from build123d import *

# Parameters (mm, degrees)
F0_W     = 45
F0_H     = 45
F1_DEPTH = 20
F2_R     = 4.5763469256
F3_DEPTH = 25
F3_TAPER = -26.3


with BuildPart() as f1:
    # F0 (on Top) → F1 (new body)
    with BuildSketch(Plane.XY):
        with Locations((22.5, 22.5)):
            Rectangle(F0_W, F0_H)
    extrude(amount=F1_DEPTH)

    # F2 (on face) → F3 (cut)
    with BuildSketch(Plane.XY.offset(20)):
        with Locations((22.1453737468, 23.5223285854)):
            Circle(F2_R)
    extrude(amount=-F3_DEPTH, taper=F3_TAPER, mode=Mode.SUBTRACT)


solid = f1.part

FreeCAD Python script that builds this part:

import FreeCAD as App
import Part
import Sketcher
Q = App.Units.Quantity

doc = App.newDocument("Part")
body = doc.addObject("PartDesign::Body", "Body")

# Sketch on XY plane
sketch1 = body.newObject("Sketcher::SketchObject", "Sketch")
sketch1.AttachmentSupport = (doc.getObject("XY_Plane"), [""])
sketch1.MapMode = "FlatFace"
sketch1.addGeometry(Part.LineSegment(App.Vector(0, 45, 0), App.Vector(0, 0, 0)), False)
sketch1.addGeometry(Part.LineSegment(App.Vector(0, 0, 0), App.Vector(45, 0, 0)), False)
sketch1.addGeometry(Part.LineSegment(App.Vector(45, 0, 0), App.Vector(45, 45, 0)), False)
sketch1.addGeometry(Part.LineSegment(App.Vector(45, 45, 0), App.Vector(0, 45, 0)), False)
sketch1.addConstraint(Sketcher.Constraint("Coincident", 0, 2, 1, 1))
sketch1.addConstraint(Sketcher.Constraint("Coincident", 1, 2, 2, 1))
sketch1.addConstraint(Sketcher.Constraint("Coincident", 2, 2, 3, 1))
sketch1.addConstraint(Sketcher.Constraint("Coincident", 3, 2, 0, 1))
sketch1.addConstraint(Sketcher.Constraint("Vertical", 0))
sketch1.addConstraint(Sketcher.Constraint("Horizontal", 1))
sketch1.addConstraint(Sketcher.Constraint("Vertical", 2))
sketch1.addConstraint(Sketcher.Constraint("Horizontal", 3))
sketch1.addConstraint(Sketcher.Constraint("Coincident", 0, 2, -1, 1))
sketch1.addConstraint(Sketcher.Constraint("Equal", 3, 0))
sketch1.addConstraint(Sketcher.Constraint("DistanceX", 1, 1, 1, 2, Q("45 mm")))
pad1 = body.newObject("PartDesign::Pad", "Pad")
pad1.Profile = sketch1
pad1.Length = 20

# Sketch on XY plane
sketch2 = body.newObject("Sketcher::SketchObject", "Sketch001")
sketch2.AttachmentSupport = (doc.getObject("XY_Plane"), [""])
sketch2.MapMode = "FlatFace"
sketch2.AttachmentOffset = App.Placement(App.Vector(0, 0, 20), App.Rotation())
sketch2.addGeometry(Part.Circle(App.Vector(22.1, 23.5, 0), App.Vector(0, 0, 1), 4.6), False)
sketch2.addConstraint(Sketcher.Constraint("Diameter", 0, Q("9.152694 mm")))
sketch2.addConstraint(Sketcher.Constraint("DistanceY", -1, 1, 0, 3, Q("23.522329 mm")))
sketch2.addConstraint(Sketcher.Constraint("DistanceX", -1, 1, 0, 3, Q("22.145374 mm")))
pocket1 = body.newObject("PartDesign::Pocket", "Pocket")
pocket1.Profile = sketch2
pocket1.Length = 25
pocket1.TaperAngle = 26.3

doc.recompute()
